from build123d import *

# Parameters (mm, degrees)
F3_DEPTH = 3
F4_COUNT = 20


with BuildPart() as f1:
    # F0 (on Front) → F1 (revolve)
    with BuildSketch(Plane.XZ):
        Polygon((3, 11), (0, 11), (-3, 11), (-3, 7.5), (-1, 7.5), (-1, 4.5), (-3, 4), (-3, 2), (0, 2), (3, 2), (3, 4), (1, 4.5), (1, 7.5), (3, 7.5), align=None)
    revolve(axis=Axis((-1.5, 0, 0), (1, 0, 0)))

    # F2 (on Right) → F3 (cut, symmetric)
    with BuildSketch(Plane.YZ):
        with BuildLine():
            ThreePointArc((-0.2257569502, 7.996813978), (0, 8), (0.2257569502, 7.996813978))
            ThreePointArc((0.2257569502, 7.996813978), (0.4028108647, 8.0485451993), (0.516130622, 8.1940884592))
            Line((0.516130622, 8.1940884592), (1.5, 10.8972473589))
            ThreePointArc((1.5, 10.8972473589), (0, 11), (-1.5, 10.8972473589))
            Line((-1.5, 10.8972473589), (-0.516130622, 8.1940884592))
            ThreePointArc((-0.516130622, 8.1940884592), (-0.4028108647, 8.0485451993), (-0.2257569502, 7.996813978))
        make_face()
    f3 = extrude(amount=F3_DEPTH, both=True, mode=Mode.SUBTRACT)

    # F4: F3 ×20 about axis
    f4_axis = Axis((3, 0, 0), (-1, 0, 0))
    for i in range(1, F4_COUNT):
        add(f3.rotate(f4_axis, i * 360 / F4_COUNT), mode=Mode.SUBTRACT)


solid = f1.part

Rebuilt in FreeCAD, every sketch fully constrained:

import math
import FreeCAD as App
import Part
import Sketcher
from FreeCAD import Vector
Q = App.Units.Quantity

doc = App.newDocument("Part")
body = doc.addObject("PartDesign::Body", "Body")

sketch1 = doc.addObject("Sketcher::SketchObject", "Sketch")
body.addObject(sketch1)
sketch1.AttachmentSupport = (doc.XZ_Plane, [""])
sketch1.MapMode = "FlatFace"
sketch1.addGeometry([
    Part.LineSegment(Vector(3, 11, 0), Vector(-3, 11, 0)),
    Part.LineSegment(Vector(-3, 11, 0), Vector(-3, 7.5, 0)),
    Part.LineSegment(Vector(-3, 7.5, 0), Vector(-1, 7.5, 0)),
    Part.LineSegment(Vector(-1, 7.5, 0), Vector(-1, 4.5, 0)),
    Part.LineSegment(Vector(-1, 4.5, 0), Vector(-3, 4, 0)),
    Part.LineSegment(Vector(-3, 4, 0), Vector(-3, 2, 0)),
    Part.LineSegment(Vector(-3, 2, 0), Vector(3, 2, 0)),
    Part.LineSegment(Vector(3, 2, 0), Vector(3, 4, 0)),
    Part.LineSegment(Vector(3, 4, 0), Vector(1, 4.5, 0)),
    Part.LineSegment(Vector(1, 4.5, 0), Vector(1, 7.5, 0)),
    Part.LineSegment(Vector(1, 7.5, 0), Vector(3, 7.5, 0)),
    Part.LineSegment(Vector(3, 7.5, 0), Vector(3, 11, 0)),
], False)
sketch1.addConstraint([
    Sketcher.Constraint("Coincident", 0, 2, 1, 1),
    Sketcher.Constraint("Coincident", 1, 2, 2, 1),
    Sketcher.Constraint("Coincident", 2, 2, 3, 1),
    Sketcher.Constraint("Coincident", 3, 2, 4, 1),
    Sketcher.Constraint("Coincident", 4, 2, 5, 1),
    Sketcher.Constraint("Coincident", 5, 2, 6, 1),
    Sketcher.Constraint("Coincident", 6, 2, 7, 1),
    Sketcher.Constraint("Coincident", 7, 2, 8, 1),
    Sketcher.Constraint("Coincident", 8, 2, 9, 1),
    Sketcher.Constraint("Coincident", 9, 2, 10, 1),
    Sketcher.Constraint("Coincident", 10, 2, 11, 1),
    Sketcher.Constraint("Coincident", 11, 2, 0, 1),
    Sketcher.Constraint("Horizontal", 0),
    Sketcher.Constraint("Vertical", 1),
    Sketcher.Constraint("Horizontal", 2),
    Sketcher.Constraint("Vertical", 3),
    Sketcher.Constraint("Vertical", 5),
    Sketcher.Constraint("Horizontal", 6),
    Sketcher.Constraint("Vertical", 7),
    Sketcher.Constraint("Vertical", 9),
    Sketcher.Constraint("Horizontal", 10),
    Sketcher.Constraint("Vertical", 11),
    Sketcher.Constraint("Symmetric", 4, 2, 7, 2, -2),
    Sketcher.Constraint("Symmetric", 3, 2, 8, 2, -2),
    Sketcher.Constraint("Symmetric", 1, 2, 10, 2, -2),
    Sketcher.Constraint("Vertical", 1, 2, 4, 2),
    Sketcher.Constraint("Equal", 10, 5),
    Sketcher.Constraint("DistanceX", 0, 2, 0, 1, Q("6 mm")),
    Sketcher.Constraint("DistanceX", 2, 1, 2, 2, Q("2 mm")),
    Sketcher.Constraint("DistanceY", 3, 2, 3, 1, Q("3 mm")),
    Sketcher.Constraint("DistanceY", 1, 2, 1, 1, Q("3.5 mm")),
    Sketcher.Constraint("DistanceY", -1, 1, 0, 2, Q("11 mm")),
    Sketcher.Constraint("DistanceY", -1, 1, 4, 2, Q("4 mm")),
])
revolution = doc.addObject("PartDesign::Revolution", "Revolution")
body.addObject(revolution)
revolution.Profile = sketch1
revolution.ReferenceAxis = (sketch1, ["H_Axis"])
revolution.Angle = 360

sketch2 = doc.addObject("Sketcher::SketchObject", "Sketch001")
body.addObject(sketch2)
sketch2.AttachmentSupport = (doc.YZ_Plane, [""])
sketch2.MapMode = "FlatFace"
sketch2.addGeometry([
    Part.ArcOfCircle(Part.Circle(Vector(0, 0, 0), Vector(0, 0, 1), 8), math.radians(88.38), math.radians(91.62)),
    Part.ArcOfCircle(Part.Circle(Vector(0.23, 8.3, 0), Vector(0, 0, 1), 0.3), math.radians(-92), math.radians(-20)),
    Part.LineSegment(Vector(0.52, 8.19, 0), Vector(1.5, 10.9, 0)),
    Part.ArcOfCircle(Part.Circle(Vector(0, 0, 0), Vector(0, 0, 1), 11), math.radians(82.16), math.radians(97.84)),
    Part.LineSegment(Vector(-1.5, 10.9, 0), Vector(-0.52, 8.19, 0)),
    Part.ArcOfCircle(Part.Circle(Vector(-0.23, 8.3, 0), Vector(0, 0, 1), 0.3), math.radians(-160), math.radians(-88)),
], False)
sketch2.addConstraint([
    Sketcher.Constraint("Tangent", 0, 1, 1, 1),
    Sketcher.Constraint("Tangent", 1, 2, 2, 1),
    Sketcher.Constraint("Coincident", 2, 2, 3, 1),
    Sketcher.Constraint("Coincident", 3, 2, 4, 1),
    Sketcher.Constraint("Tangent", 4, 2, 5, 1),
    Sketcher.Constraint("Tangent", 5, 2, 0, 2),
    Sketcher.Constraint("Coincident", 0, 3, -1, 1),
    Sketcher.Constraint("Coincident", 3, 3, -1, 1),
    Sketcher.Constraint("Equal", 1, 5),
    Sketcher.Constraint("Symmetric", 1, 2, 4, 2, -2),
    Sketcher.Constraint("Radius", 0, Q("8 mm")),
    Sketcher.Constraint("Radius", 3, Q("11 mm")),
    Sketcher.Constraint("Radius", 1, Q("0.3 mm")),
    Sketcher.Constraint("Angle", 2, Q("70 deg")),
    Sketcher.Constraint("DistanceX", 3, 2, 2, 2, Q("3 mm")),
])
pocket1 = doc.addObject("PartDesign::Pocket", "Pocket")
body.addObject(pocket1)
pocket1.Profile = sketch2
pocket1.Length = 6
pocket1.Midplane = True
doc.recompute()

polarpattern = doc.addObject("PartDesign::PolarPattern", "PolarPattern")
body.addObject(polarpattern)
polarpattern.Originals = [pocket1]
polarpattern.Axis = (doc.X_Axis, [""])
polarpattern.Angle = 360
polarpattern.Occurrences = 20
body.Tip = polarpattern

doc.recompute()
